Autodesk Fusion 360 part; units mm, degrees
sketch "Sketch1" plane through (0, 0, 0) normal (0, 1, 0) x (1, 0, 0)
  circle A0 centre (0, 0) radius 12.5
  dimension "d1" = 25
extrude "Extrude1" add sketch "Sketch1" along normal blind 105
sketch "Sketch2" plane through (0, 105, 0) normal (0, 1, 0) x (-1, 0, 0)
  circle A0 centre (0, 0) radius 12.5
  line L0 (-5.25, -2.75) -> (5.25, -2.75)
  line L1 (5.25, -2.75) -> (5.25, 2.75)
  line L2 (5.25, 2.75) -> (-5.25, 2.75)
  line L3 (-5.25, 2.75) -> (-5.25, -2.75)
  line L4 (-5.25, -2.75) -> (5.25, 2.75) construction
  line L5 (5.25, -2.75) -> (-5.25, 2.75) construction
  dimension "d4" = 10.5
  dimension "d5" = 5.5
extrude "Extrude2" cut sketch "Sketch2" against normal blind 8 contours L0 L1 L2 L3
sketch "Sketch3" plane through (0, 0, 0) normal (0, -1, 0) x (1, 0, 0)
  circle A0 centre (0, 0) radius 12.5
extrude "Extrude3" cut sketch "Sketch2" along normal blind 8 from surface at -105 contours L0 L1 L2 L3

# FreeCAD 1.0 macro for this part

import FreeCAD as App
import Part
import Sketcher
Q = App.Units.Quantity

doc = App.newDocument("Part")
body = doc.addObject("PartDesign::Body", "Body")

sketch1 = body.newObject("Sketcher::SketchObject", "Sketch")
sketch1.AttachmentSupport = (doc.getObject("XZ_Plane"), [""])
sketch1.MapMode = "FlatFace"
sketch1.addGeometry(Part.Circle(App.Vector(0, 0, 0), App.Vector(0, 0, 1), 12.5), False)
sketch1.addConstraint([
    Sketcher.Constraint("Coincident", 0, 3, -1, 1),
    Sketcher.Constraint("Diameter", 0, Q("25 mm")),
])
pad1 = body.newObject("PartDesign::Pad", "Pad")
pad1.Profile = sketch1
pad1.Length = 105
pad1.Reversed = True

sketch2 = body.newObject("Sketcher::SketchObject", "Sketch001")
sketch2.AttachmentSupport = (doc.getObject("XZ_Plane"), [""])
sketch2.MapMode = "FlatFace"
sketch2.AttachmentOffset = App.Placement(App.Vector(0, 0, -105), App.Rotation())
sketch2.addGeometry([
    Part.LineSegment(App.Vector(5.25, 2.75, 0), App.Vector(5.25, -2.75, 0)),
    Part.LineSegment(App.Vector(5.25, -2.75, 0), App.Vector(-5.25, -2.75, 0)),
    Part.LineSegment(App.Vector(-5.25, -2.75, 0), App.Vector(-5.25, 2.75, 0)),
    Part.LineSegment(App.Vector(-5.25, 2.75, 0), App.Vector(5.25, 2.75, 0)),
], False)
sketch2.addConstraint([
    Sketcher.Constraint("Coincident", 0, 2, 1, 1),
    Sketcher.Constraint("Coincident", 1, 2, 2, 1),
    Sketcher.Constraint("Coincident", 2, 2, 3, 1),
    Sketcher.Constraint("Coincident", 3, 2, 0, 1),
    Sketcher.Constraint("Vertical", 0),
    Sketcher.Constraint("Horizontal", 1),
    Sketcher.Constraint("Vertical", 2),
    Sketcher.Constraint("Horizontal", 3),
    Sketcher.Constraint("Symmetric", 0, 2, 2, 2, -1, 1),
    Sketcher.Constraint("DistanceX", 1, 2, 1, 1, Q("10.5 mm")),
    Sketcher.Constraint("DistanceY", 0, 2, 0, 1, Q("5.5 mm")),
])
pocket1 = body.newObject("PartDesign::Pocket", "Pocket")
pocket1.Profile = sketch2
pocket1.Length = 8
pocket1.Reversed = True

sketch3 = body.newObject("Sketcher::SketchObject", "Sketch002")
sketch3.AttachmentSupport = (doc.getObject("XZ_Plane"), [""])
sketch3.MapMode = "FlatFace"
sketch3.addGeometry([
    Part.LineSegment(App.Vector(5.25, 2.75, 0), App.Vector(5.25, -2.75, 0)),
    Part.LineSegment(App.Vector(5.25, -2.75, 0), App.Vector(-5.25, -2.75, 0)),
    Part.LineSegment(App.Vector(-5.25, -2.75, 0), App.Vector(-5.25, 2.75, 0)),
    Part.LineSegment(App.Vector(-5.25, 2.75, 0), App.Vector(5.25, 2.75, 0)),
], False)
sketch3.addConstraint([
    Sketcher.Constraint("Coincident", 0, 2, 1, 1),
    Sketcher.Constraint("Coincident", 1, 2, 2, 1),
    Sketcher.Constraint("Coincident", 2, 2, 3, 1),
    Sketcher.Constraint("Coincident", 3, 2, 0, 1),
    Sketcher.Constraint("Vertical", 0),
    Sketcher.Constraint("Horizontal", 1),
    Sketcher.Constraint("Vertical", 2),
    Sketcher.Constraint("Horizontal", 3),
    Sketcher.Constraint("Symmetric", 0, 2, 2, 2, -1, 1),
    Sketcher.Constraint("DistanceX", 1, 2, 1, 1, Q("10.5 mm")),
    Sketcher.Constraint("DistanceY", 0, 2, 0, 1, Q("5.5 mm")),
])
pocket2 = body.newObject("PartDesign::Pocket", "Pocket001")
pocket2.Profile = sketch3
pocket2.Length = 8

doc.recompute()
